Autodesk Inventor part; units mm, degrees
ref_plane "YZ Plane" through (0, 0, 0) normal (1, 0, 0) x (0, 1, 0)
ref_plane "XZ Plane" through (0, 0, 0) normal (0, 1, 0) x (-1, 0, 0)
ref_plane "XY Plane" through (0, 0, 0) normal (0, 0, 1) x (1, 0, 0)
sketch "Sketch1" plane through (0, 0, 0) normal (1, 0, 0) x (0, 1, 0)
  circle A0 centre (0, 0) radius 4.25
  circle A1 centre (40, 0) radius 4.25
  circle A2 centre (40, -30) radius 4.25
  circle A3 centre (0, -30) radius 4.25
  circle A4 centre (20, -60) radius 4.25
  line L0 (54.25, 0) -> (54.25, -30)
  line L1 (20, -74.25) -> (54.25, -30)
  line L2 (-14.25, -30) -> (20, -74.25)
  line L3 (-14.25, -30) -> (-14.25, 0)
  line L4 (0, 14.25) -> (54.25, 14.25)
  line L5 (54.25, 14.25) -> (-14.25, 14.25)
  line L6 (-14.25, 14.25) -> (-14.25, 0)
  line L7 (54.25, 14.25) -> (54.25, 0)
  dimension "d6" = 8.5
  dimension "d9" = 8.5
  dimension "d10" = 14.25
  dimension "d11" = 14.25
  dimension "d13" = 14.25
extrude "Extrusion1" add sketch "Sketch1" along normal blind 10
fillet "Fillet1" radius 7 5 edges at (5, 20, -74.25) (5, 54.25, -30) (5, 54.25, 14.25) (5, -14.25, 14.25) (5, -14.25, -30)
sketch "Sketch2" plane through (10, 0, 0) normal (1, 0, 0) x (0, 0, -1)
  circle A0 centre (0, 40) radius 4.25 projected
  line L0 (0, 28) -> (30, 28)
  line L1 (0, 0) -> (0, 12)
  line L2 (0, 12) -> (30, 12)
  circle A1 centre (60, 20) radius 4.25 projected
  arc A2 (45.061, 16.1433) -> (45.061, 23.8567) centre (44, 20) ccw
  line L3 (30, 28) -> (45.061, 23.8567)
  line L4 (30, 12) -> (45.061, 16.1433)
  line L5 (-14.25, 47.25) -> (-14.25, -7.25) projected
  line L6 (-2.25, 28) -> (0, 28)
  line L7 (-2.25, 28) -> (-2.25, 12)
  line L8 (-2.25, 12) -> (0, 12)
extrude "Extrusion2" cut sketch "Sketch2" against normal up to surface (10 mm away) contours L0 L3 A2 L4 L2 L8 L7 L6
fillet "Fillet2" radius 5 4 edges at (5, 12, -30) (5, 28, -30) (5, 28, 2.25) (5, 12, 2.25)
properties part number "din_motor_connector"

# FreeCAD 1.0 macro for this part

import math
import FreeCAD as App
import Part
import Sketcher

V = App.Vector
Q = App.Units.Quantity


def edges_at(feature, points):
    """Names of the edges that pass closest to the given points."""
    edges = feature.Shape.Edges
    near = lambda p: min(range(len(edges)), key=lambda i: edges[i].distToShape(Part.Vertex(*p))[0])
    return sorted({f"Edge{near(p) + 1}" for p in points})

doc = App.newDocument("Part")
body = doc.addObject("PartDesign::Body", "Body")

sketch1 = body.newObject("Sketcher::SketchObject", "Sketch")
sketch1.AttachmentSupport = (doc.getObject("YZ_Plane"), [""])
sketch1.MapMode = "FlatFace"
sketch1.addGeometry(Part.LineSegment(V(54.2, -30, 0), V(54.2, 14.2, 0)), False)
sketch1.addGeometry(Part.LineSegment(V(54.2, 14.2, 0), V(-14.2, 14.2, 0)), False)
sketch1.addGeometry(Part.LineSegment(V(-14.2, 14.2, 0), V(-14.2, -30, 0)), False)
sketch1.addGeometry(Part.LineSegment(V(-14.2, -30, 0), V(20, -74.2, 0)), False)
sketch1.addGeometry(Part.LineSegment(V(20, -74.2, 0), V(54.2, -30, 0)), False)
sketch1.addGeometry(Part.Circle(V(20, -60, 0), V(0, 0, 1), 4.2), False)
sketch1.addGeometry(Part.Circle(V(0, -30, 0), V(0, 0, 1), 4.2), False)
sketch1.addGeometry(Part.Circle(V(0, 0, 0), V(0, 0, 1), 4.2), False)
sketch1.addGeometry(Part.Circle(V(40, -30, 0), V(0, 0, 1), 4.2), False)
sketch1.addGeometry(Part.Circle(V(40, 0, 0), V(0, 0, 1), 4.2), False)
sketch1.addConstraint(Sketcher.Constraint("Coincident", 0, 2, 1, 1))
sketch1.addConstraint(Sketcher.Constraint("Coincident", 1, 2, 2, 1))
sketch1.addConstraint(Sketcher.Constraint("Coincident", 2, 2, 3, 1))
sketch1.addConstraint(Sketcher.Constraint("Coincident", 3, 2, 4, 1))
sketch1.addConstraint(Sketcher.Constraint("Coincident", 4, 2, 0, 1))
sketch1.addConstraint(Sketcher.Constraint("Vertical", 0))
sketch1.addConstraint(Sketcher.Constraint("Horizontal", 1))
sketch1.addConstraint(Sketcher.Constraint("Vertical", 2))
sketch1.addConstraint(Sketcher.Constraint("Coincident", 7, 3, -1, 1))
sketch1.addConstraint(Sketcher.Constraint("Equal", 5, 6))
sketch1.addConstraint(Sketcher.Constraint("Equal", 6, 7))
sketch1.addConstraint(Sketcher.Constraint("Equal", 7, 8))
sketch1.addConstraint(Sketcher.Constraint("Equal", 8, 9))
sketch1.addConstraint(Sketcher.Constraint("PointOnObject", 6, 3, -2))
sketch1.addConstraint(Sketcher.Constraint("PointOnObject", 9, 3, -1))
sketch1.addConstraint(Sketcher.Constraint("Horizontal", 6, 3, 8, 3))
sketch1.addConstraint(Sketcher.Constraint("Horizontal", 8, 3, 2, 2))
sketch1.addConstraint(Sketcher.Constraint("Horizontal", 2, 2, 4, 2))
sketch1.addConstraint(Sketcher.Constraint("Vertical", 8, 3, 9, 3))
sketch1.addConstraint(Sketcher.Constraint("Vertical", 5, 3, 3, 2))
sketch1.addConstraint(Sketcher.Constraint("Equal", 3, 4))
sketch1.addConstraint(Sketcher.Constraint("Diameter", 5, Q("8.5 mm")))
sketch1.addConstraint(Sketcher.Constraint("DistanceY", -1, 1, 0, 2, Q("14.25 mm")))
sketch1.addConstraint(Sketcher.Constraint("DistanceX", 1, 2, -1, 1, Q("14.25 mm")))
sketch1.addConstraint(Sketcher.Constraint("DistanceX", 9, 3, 0, 2, Q("14.25 mm")))
sketch1.addConstraint(Sketcher.Constraint("DistanceY", 3, 2, 5, 3, Q("14.25 mm")))
sketch1.addConstraint(Sketcher.Constraint("DistanceX", 1, 2, 1, 1, Q("68.5 mm")))
sketch1.addConstraint(Sketcher.Constraint("DistanceY", 5, 3, -1, 1, Q("60 mm")))
sketch1.addConstraint(Sketcher.Constraint("DistanceY", 6, 3, -1, 1, Q("30 mm")))
pad1 = body.newObject("PartDesign::Pad", "Pad")
pad1.Profile = sketch1
pad1.Length = 10
doc.recompute()

fillet = body.newObject("PartDesign::Fillet", "Fillet")
fillet.Base = (pad1, edges_at(pad1, [
    (5, 20, -74.25),
    (5, 54.25, -30),
    (5, 54.25, 14.25),
    (5, -14.25, 14.25),
    (5, -14.25, -30),
]))
fillet.Radius = 7

sketch2 = body.newObject("Sketcher::SketchObject", "Sketch001")
sketch2.AttachmentSupport = (doc.getObject("YZ_Plane"), [""])
sketch2.MapMode = "FlatFace"
sketch2.AttachmentOffset = App.Placement(V(0, 0, 10), App.Rotation())
sketch2.addGeometry(Part.LineSegment(V(28, -30, 0), V(28, 2.2, 0)), False)
sketch2.addGeometry(Part.LineSegment(V(28, 2.2, 0), V(12, 2.2, 0)), False)
sketch2.addGeometry(Part.LineSegment(V(12, 2.2, 0), V(12, -30, 0)), False)
sketch2.addGeometry(Part.LineSegment(V(12, -30, 0), V(16.1, -45.1, 0)), False)
sketch2.addGeometry(Part.ArcOfCircle(Part.Circle(V(20, -44, 0), V(0, 0, 1), 4), math.radians(-165), math.radians(-15)), False)
sketch2.addGeometry(Part.LineSegment(V(23.9, -45.1, 0), V(28, -30, 0)), False)
sketch2.addConstraint(Sketcher.Constraint("Coincident", 0, 2, 1, 1))
sketch2.addConstraint(Sketcher.Constraint("Coincident", 1, 2, 2, 1))
sketch2.addConstraint(Sketcher.Constraint("Coincident", 2, 2, 3, 1))
sketch2.addConstraint(Sketcher.Constraint("Tangent", 3, 2, 4, 1))
sketch2.addConstraint(Sketcher.Constraint("Tangent", 4, 2, 5, 1))
sketch2.addConstraint(Sketcher.Constraint("Coincident", 5, 2, 0, 1))
sketch2.addConstraint(Sketcher.Constraint("Vertical", 0))
sketch2.addConstraint(Sketcher.Constraint("Horizontal", 1))
sketch2.addConstraint(Sketcher.Constraint("Vertical", 2))
sketch2.addConstraint(Sketcher.Constraint("Horizontal", 3, 2, 4, 2))
sketch2.addConstraint(Sketcher.Constraint("Horizontal", 2, 2, 5, 2))
sketch2.addConstraint(Sketcher.Constraint("Radius", 4, Q("4 mm")))
sketch2.addConstraint(Sketcher.Constraint("DistanceX", 1, 2, 1, 1, Q("16 mm")))
sketch2.addConstraint(Sketcher.Constraint("DistanceX", -1, 1, 4, 3, Q("20 mm")))
sketch2.addConstraint(Sketcher.Constraint("DistanceY", 4, 3, -1, 1, Q("44 mm")))
sketch2.addConstraint(Sketcher.Constraint("DistanceY", 2, 2, -1, 1, Q("30 mm")))
sketch2.addConstraint(Sketcher.Constraint("DistanceY", 0, 1, 0, 2, Q("32.25 mm")))
pocket1 = body.newObject("PartDesign::Pocket", "Pocket")
pocket1.Profile = sketch2
pocket1.Length = 10
doc.recompute()

fillet2 = body.newObject("PartDesign::Fillet", "Fillet001")
fillet2.Base = (pocket1, edges_at(pocket1, [
    (5, 12, -30),
    (5, 28, -30),
    (5, 28, 2.25),
    (5, 12, 2.25),
]))
fillet2.Radius = 5

doc.recompute()
